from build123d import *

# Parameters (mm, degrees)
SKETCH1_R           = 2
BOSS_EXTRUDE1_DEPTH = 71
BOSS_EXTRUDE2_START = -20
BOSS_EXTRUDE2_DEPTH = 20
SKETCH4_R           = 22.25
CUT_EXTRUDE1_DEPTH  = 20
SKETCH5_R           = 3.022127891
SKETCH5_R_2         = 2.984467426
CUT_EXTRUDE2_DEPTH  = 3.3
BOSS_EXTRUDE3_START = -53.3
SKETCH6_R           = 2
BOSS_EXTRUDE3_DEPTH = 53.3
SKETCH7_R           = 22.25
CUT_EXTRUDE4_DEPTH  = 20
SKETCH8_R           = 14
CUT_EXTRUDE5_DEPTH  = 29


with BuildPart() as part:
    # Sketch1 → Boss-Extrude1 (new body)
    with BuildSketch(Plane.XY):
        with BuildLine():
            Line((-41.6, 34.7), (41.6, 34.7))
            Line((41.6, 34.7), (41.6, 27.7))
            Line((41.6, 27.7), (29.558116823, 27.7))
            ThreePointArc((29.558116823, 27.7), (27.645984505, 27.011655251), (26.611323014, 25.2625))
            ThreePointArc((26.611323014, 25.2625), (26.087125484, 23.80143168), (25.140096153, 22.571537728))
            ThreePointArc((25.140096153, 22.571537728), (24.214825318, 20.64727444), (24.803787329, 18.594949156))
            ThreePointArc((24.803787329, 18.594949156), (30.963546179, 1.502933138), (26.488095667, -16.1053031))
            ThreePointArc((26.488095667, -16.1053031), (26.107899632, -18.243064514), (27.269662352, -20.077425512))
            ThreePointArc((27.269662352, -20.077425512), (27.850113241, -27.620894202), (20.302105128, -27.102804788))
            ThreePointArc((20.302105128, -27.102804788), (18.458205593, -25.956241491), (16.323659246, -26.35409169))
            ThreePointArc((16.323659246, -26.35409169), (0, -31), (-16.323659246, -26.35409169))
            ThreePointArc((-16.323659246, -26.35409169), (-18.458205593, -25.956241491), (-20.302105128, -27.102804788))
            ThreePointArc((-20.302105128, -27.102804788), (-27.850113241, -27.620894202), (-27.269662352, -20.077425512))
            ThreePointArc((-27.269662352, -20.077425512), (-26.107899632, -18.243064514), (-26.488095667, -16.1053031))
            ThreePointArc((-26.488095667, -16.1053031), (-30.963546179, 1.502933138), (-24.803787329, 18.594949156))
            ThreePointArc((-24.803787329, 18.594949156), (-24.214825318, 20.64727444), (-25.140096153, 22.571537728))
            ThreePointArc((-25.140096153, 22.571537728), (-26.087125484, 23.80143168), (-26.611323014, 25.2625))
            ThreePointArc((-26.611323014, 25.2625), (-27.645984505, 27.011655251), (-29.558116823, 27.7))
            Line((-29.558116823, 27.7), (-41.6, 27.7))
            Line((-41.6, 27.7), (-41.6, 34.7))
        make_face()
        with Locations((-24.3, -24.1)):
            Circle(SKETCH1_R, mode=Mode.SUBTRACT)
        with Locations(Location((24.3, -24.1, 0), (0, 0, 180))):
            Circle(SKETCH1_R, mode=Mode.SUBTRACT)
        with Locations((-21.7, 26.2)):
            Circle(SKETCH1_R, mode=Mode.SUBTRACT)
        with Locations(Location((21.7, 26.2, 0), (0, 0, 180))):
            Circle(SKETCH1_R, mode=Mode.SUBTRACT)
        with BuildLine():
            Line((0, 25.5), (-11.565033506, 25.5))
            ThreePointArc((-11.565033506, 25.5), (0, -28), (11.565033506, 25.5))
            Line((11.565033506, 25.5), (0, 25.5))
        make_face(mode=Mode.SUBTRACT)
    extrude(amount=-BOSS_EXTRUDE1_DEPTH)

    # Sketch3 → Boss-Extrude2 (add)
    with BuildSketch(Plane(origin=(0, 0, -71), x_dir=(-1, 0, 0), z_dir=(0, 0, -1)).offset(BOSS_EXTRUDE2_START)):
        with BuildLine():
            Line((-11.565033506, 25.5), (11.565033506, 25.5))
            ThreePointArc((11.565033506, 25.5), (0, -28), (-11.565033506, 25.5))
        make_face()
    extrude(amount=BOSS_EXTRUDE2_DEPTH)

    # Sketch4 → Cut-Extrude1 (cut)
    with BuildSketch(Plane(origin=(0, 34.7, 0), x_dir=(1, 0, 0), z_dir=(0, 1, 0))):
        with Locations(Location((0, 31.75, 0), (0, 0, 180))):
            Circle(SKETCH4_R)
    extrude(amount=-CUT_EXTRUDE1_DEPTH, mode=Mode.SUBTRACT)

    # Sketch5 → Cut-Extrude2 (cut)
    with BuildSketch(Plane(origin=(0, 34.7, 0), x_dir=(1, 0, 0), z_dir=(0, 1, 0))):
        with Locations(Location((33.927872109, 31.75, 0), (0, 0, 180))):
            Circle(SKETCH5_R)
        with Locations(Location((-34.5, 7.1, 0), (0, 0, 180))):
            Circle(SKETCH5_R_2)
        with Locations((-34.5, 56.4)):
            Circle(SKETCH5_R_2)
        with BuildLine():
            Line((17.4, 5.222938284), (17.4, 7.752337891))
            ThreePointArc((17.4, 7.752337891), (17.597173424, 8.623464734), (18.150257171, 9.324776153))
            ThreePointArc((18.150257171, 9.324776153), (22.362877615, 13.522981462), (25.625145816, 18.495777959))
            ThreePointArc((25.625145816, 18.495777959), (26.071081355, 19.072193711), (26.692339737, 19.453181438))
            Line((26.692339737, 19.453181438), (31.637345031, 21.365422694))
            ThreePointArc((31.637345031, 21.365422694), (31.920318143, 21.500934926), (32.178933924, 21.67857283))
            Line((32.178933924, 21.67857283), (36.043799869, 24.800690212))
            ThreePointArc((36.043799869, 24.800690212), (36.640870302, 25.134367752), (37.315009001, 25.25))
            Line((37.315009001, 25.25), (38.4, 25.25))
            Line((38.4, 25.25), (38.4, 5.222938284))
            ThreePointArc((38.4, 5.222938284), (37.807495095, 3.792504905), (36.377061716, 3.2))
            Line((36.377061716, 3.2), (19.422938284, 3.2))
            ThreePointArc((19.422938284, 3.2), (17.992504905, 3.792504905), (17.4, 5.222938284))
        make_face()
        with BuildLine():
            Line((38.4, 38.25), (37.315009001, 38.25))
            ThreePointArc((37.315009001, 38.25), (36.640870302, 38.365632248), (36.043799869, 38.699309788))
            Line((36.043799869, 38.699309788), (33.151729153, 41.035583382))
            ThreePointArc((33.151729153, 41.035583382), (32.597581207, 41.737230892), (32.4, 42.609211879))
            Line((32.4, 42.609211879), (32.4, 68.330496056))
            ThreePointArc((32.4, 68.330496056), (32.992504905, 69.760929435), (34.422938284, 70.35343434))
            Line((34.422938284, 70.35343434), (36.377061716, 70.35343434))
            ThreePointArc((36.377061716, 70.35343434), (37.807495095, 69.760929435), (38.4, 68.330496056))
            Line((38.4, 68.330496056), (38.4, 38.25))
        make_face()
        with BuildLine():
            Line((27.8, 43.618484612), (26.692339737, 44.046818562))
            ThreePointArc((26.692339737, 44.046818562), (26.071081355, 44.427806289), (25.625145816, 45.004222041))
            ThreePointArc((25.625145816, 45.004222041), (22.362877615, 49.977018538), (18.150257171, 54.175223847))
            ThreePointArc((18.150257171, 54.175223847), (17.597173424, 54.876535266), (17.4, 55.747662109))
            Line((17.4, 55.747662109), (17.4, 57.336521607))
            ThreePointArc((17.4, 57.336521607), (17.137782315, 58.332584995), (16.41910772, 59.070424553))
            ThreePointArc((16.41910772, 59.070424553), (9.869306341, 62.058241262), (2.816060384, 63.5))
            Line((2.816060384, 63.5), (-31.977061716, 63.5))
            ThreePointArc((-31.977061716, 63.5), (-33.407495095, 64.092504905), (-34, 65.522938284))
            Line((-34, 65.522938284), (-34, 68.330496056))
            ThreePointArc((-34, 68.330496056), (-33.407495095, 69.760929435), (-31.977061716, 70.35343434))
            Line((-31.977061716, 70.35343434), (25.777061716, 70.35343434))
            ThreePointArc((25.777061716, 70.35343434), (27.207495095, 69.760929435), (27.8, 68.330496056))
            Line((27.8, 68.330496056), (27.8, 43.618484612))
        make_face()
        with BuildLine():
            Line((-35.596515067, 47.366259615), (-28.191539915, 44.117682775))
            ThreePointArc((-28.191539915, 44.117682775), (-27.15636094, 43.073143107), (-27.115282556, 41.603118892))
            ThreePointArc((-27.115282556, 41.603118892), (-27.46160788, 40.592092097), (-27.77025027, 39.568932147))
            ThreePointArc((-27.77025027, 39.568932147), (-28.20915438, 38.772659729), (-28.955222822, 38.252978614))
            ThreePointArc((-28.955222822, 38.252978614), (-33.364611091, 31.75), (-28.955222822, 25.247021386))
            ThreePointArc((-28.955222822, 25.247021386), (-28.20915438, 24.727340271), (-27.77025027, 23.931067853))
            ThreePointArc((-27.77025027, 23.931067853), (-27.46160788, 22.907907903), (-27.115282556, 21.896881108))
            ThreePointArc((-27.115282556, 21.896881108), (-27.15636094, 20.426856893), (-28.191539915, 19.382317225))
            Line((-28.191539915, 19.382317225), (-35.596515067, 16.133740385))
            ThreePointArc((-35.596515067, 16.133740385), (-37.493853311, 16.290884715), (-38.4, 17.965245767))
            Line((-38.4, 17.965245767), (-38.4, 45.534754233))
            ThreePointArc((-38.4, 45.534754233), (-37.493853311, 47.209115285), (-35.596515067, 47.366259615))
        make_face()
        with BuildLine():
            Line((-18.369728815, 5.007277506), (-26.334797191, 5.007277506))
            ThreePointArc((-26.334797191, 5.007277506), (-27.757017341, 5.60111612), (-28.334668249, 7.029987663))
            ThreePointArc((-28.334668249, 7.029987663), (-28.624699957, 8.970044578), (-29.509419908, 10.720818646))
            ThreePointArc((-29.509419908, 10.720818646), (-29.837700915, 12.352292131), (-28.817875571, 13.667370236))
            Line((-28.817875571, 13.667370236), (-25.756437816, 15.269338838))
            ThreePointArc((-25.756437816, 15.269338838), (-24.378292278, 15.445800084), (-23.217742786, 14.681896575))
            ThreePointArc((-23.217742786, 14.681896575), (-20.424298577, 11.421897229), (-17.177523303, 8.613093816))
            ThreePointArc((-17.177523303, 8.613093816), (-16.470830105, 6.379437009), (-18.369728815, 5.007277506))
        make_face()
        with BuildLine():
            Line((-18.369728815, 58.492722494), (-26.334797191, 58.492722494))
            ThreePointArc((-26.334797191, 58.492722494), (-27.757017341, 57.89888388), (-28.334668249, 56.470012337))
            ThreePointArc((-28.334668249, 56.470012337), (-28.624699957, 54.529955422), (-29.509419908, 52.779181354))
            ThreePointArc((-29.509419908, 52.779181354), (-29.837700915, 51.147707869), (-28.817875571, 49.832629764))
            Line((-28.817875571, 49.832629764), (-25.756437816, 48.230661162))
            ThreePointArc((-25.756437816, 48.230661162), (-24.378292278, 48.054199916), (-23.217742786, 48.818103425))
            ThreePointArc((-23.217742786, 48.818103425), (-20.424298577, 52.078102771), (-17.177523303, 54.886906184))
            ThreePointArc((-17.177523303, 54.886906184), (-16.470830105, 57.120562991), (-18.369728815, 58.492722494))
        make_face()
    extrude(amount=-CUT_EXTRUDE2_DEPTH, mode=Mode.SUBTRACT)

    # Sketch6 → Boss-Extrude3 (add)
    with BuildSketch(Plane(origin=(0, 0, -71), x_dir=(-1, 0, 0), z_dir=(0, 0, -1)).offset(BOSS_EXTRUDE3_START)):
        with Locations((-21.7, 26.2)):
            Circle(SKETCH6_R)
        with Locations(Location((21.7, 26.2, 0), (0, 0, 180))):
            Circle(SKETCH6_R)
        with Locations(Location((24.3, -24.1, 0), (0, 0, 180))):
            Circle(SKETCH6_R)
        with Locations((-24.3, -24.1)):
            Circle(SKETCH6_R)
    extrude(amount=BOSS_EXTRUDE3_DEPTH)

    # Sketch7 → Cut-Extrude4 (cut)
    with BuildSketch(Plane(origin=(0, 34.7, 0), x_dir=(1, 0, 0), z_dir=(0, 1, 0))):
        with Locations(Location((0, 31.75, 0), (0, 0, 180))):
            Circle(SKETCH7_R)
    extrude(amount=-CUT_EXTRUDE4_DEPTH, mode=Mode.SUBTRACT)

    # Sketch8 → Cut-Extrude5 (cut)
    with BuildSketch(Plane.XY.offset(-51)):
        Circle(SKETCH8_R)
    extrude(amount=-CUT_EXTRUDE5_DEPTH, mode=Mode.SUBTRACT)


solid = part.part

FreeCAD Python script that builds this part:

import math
import FreeCAD as App
import Part
import Sketcher
from FreeCAD import Vector

doc = App.newDocument("Part")
body = doc.addObject("PartDesign::Body", "Body")

sketch1 = body.newObject("Sketcher::SketchObject", "Sketch")
sketch1.AttachmentSupport = (doc.getObject("XY_Plane"), [""])
sketch1.MapMode = "FlatFace"
sketch1.addGeometry(Part.LineSegment(Vector(41.6, 34.7, 0), Vector(-41.6, 34.7, 0)), False)
sketch1.addGeometry(Part.LineSegment(Vector(-41.6, 34.7, 0), Vector(-41.6, 27.7, 0)), False)
sketch1.addGeometry(Part.LineSegment(Vector(-41.6, 27.7, 0), Vector(-29.6, 27.7, 0)), False)
sketch1.addGeometry(Part.ArcOfCircle(Part.Circle(Vector(-29.6, 24.7, 0), Vector(0, 0, 1), 3), math.radians(11), math.radians(90)), False)
sketch1.addGeometry(Part.ArcOfCircle(Part.Circle(Vector(-21.7, 26.2, 0), Vector(0, 0, 1), 5), math.radians(-169), math.radians(-133)), False)
sketch1.addGeometry(Part.ArcOfCircle(Part.Circle(Vector(-27.2, 20.4, 0), Vector(0, 0, 1), 3), math.radians(-37), math.radians(47)), False)
sketch1.addGeometry(Part.ArcOfCircle(Part.Circle(Vector(0, 0, 0), Vector(0, 0, 1), 31), math.radians(143), math.radians(211)), False)
sketch1.addGeometry(Part.ArcOfCircle(Part.Circle(Vector(-29.1, -17.7, 0), Vector(0, 0, 1), 3), math.radians(-54), math.radians(31)), False)
sketch1.addGeometry(Part.ArcOfCircle(Part.Circle(Vector(-24.3, -24.1, 0), Vector(0, 0, 1), 5), math.radians(126), math.radians(323)), False)
sketch1.addGeometry(Part.ArcOfCircle(Part.Circle(Vector(-17.9, -28.9, 0), Vector(0, 0, 1), 3), math.radians(58), math.radians(143)), False)
sketch1.addGeometry(Part.ArcOfCircle(Part.Circle(Vector(0, 0, 0), Vector(0, 0, 1), 31), math.radians(-122), math.radians(-58)), False)
sketch1.addGeometry(Part.ArcOfCircle(Part.Circle(Vector(17.9, -28.9, 0), Vector(0, 0, 1), 3), math.radians(37), math.radians(122)), False)
sketch1.addGeometry(Part.ArcOfCircle(Part.Circle(Vector(24.3, -24.1, 0), Vector(0, 0, 1), 5), math.radians(-143), math.radians(54)), False)
sketch1.addGeometry(Part.ArcOfCircle(Part.Circle(Vector(29.1, -17.7, 0), Vector(0, 0, 1), 3), math.radians(149), math.radians(234)), False)
sketch1.addGeometry(Part.ArcOfCircle(Part.Circle(Vector(0, 0, 0), Vector(0, 0, 1), 31), math.radians(-31), math.radians(37)), False)
sketch1.addGeometry(Part.ArcOfCircle(Part.Circle(Vector(27.2, 20.4, 0), Vector(0, 0, 1), 3), math.radians(133), math.radians(217)), False)
sketch1.addGeometry(Part.ArcOfCircle(Part.Circle(Vector(21.7, 26.2, 0), Vector(0, 0, 1), 5), math.radians(-47), math.radians(-11)), False)
sketch1.addGeometry(Part.ArcOfCircle(Part.Circle(Vector(29.6, 24.7, 0), Vector(0, 0, 1), 3), math.radians(90), math.radians(169)), False)
sketch1.addGeometry(Part.LineSegment(Vector(29.6, 27.7, 0), Vector(41.6, 27.7, 0)), False)
sketch1.addGeometry(Part.LineSegment(Vector(41.6, 27.7, 0), Vector(41.6, 34.7, 0)), False)
sketch1.addGeometry(Part.Circle(Vector(24.3, -24.1, 0), Vector(0, 0, 1), 2), False)
sketch1.addGeometry(Part.Circle(Vector(-24.3, -24.1, 0), Vector(0, 0, 1), 2), False)
sketch1.addGeometry(Part.LineSegment(Vector(-11.6, 25.5, 0), Vector(11.6, 25.5, 0)), False)
sketch1.addGeometry(Part.ArcOfCircle(Part.Circle(Vector(0, 0, 0), Vector(0, 0, 1), 28), math.radians(114), math.radians(426)), False)
sketch1.addGeometry(Part.Circle(Vector(21.7, 26.2, 0), Vector(0, 0, 1), 2), False)
sketch1.addGeometry(Part.Circle(Vector(-21.7, 26.2, 0), Vector(0, 0, 1), 2), False)
sketch1.addConstraint(Sketcher.Constraint("Coincident", 0, 2, 1, 1))
sketch1.addConstraint(Sketcher.Constraint("Coincident", 1, 2, 2, 1))
sketch1.addConstraint(Sketcher.Constraint("Tangent", 2, 2, 3, 2))
sketch1.addConstraint(Sketcher.Constraint("Tangent", 3, 1, 4, 1))
sketch1.addConstraint(Sketcher.Constraint("Tangent", 4, 2, 5, 2))
sketch1.addConstraint(Sketcher.Constraint("Tangent", 5, 1, 6, 1))
sketch1.addConstraint(Sketcher.Constraint("Tangent", 6, 2, 7, 2))
sketch1.addConstraint(Sketcher.Constraint("Tangent", 7, 1, 8, 1))
sketch1.addConstraint(Sketcher.Constraint("Tangent", 8, 2, 9, 2))
sketch1.addConstraint(Sketcher.Constraint("Tangent", 9, 1, 10, 1))
sketch1.addConstraint(Sketcher.Constraint("Tangent", 10, 2, 11, 2))
sketch1.addConstraint(Sketcher.Constraint("Tangent", 11, 1, 12, 1))
sketch1.addConstraint(Sketcher.Constraint("Tangent", 12, 2, 13, 2))
sketch1.addConstraint(Sketcher.Constraint("Tangent", 13, 1, 14, 1))
sketch1.addConstraint(Sketcher.Constraint("Tangent", 14, 2, 15, 2))
sketch1.addConstraint(Sketcher.Constraint("Tangent", 15, 1, 16, 1))
sketch1.addConstraint(Sketcher.Constraint("Tangent", 16, 2, 17, 2))
sketch1.addConstraint(Sketcher.Constraint("Tangent", 17, 1, 18, 1))
sketch1.addConstraint(Sketcher.Constraint("Coincident", 18, 2, 19, 1))
sketch1.addConstraint(Sketcher.Constraint("Coincident", 19, 2, 0, 1))
sketch1.addConstraint(Sketcher.Constraint("Coincident", 22, 1, 23, 1))
sketch1.addConstraint(Sketcher.Constraint("Coincident", 23, 2, 22, 2))
sketch1.addConstraint(Sketcher.Constraint("Horizontal", 0))
sketch1.addConstraint(Sketcher.Constraint("Vertical", 1))
sketch1.addConstraint(Sketcher.Constraint("Horizontal", 2))
sketch1.addConstraint(Sketcher.Constraint("Horizontal", 18))
sketch1.addConstraint(Sketcher.Constraint("Vertical", 19))
sketch1.addConstraint(Sketcher.Constraint("Horizontal", 22))
sketch1.addConstraint(Sketcher.Constraint("Coincident", 6, 3, -1, 1))
sketch1.addConstraint(Sketcher.Constraint("Coincident", 10, 3, -1, 1))
sketch1.addConstraint(Sketcher.Constraint("Coincident", 14, 3, -1, 1))
sketch1.addConstraint(Sketcher.Constraint("Coincident", 23, 3, -1, 1))
sketch1.addConstraint(Sketcher.Constraint("Coincident", 20, 3, 12, 3))
sketch1.addConstraint(Sketcher.Constraint("Coincident", 21, 3, 8, 3))
sketch1.addConstraint(Sketcher.Constraint("Coincident", 24, 3, 16, 3))
sketch1.addConstraint(Sketcher.Constraint("Coincident", 25, 3, 4, 3))
sketch1.addConstraint(Sketcher.Constraint("Equal", 3, 5))
sketch1.addConstraint(Sketcher.Constraint("Equal", 5, 7))
sketch1.addConstraint(Sketcher.Constraint("Equal", 4, 8))
sketch1.addConstraint(Sketcher.Constraint("Equal", 7, 9))
sketch1.addConstraint(Sketcher.Constraint("Equal", 6, 10))
sketch1.addConstraint(Sketcher.Constraint("Equal", 9, 11))
sketch1.addConstraint(Sketcher.Constraint("Equal", 8, 12))
sketch1.addConstraint(Sketcher.Constraint("Equal", 11, 13))
sketch1.addConstraint(Sketcher.Constraint("Equal", 10, 14))
sketch1.addConstraint(Sketcher.Constraint("Equal", 13, 15))
sketch1.addConstraint(Sketcher.Constraint("Equal", 12, 16))
sketch1.addConstraint(Sketcher.Constraint("Equal", 15, 17))
sketch1.addConstraint(Sketcher.Constraint("Equal", 20, 21))
sketch1.addConstraint(Sketcher.Constraint("Equal", 21, 24))
sketch1.addConstraint(Sketcher.Constraint("Equal", 24, 25))
sketch1.addConstraint(Sketcher.Constraint("Symmetric", 8, 3, 12, 3, -2))
sketch1.addConstraint(Sketcher.Constraint("Symmetric", 4, 3, 16, 3, -2))
sketch1.addConstraint(Sketcher.Constraint("Symmetric", 1, 2, 18, 2, -2))
sketch1.addConstraint(Sketcher.Constraint("Diameter", 20, 4.0))
sketch1.addConstraint(Sketcher.Constraint("Radius", 3, 3.0))
sketch1.addConstraint(Sketcher.Constraint("Radius", 4, 5.0))
sketch1.addConstraint(Sketcher.Constraint("Radius", 6, 31.0))
sketch1.addConstraint(Sketcher.Constraint("Radius", 23, 28.0))
sketch1.addConstraint(Sketcher.Constraint("DistanceY", 1, 2, 1, 1, 7.0))
sketch1.addConstraint(Sketcher.Constraint("DistanceX", 0, 2, 0, 1, 83.2))
sketch1.addConstraint(Sketcher.Constraint("DistanceY", -1, 1, 3, 3, 24.7))
sketch1.addConstraint(Sketcher.Constraint("DistanceX", 4, 3, -1, 1, 21.7))
sketch1.addConstraint(Sketcher.Constraint("DistanceY", -1, 1, 4, 3, 26.2))
sketch1.addConstraint(Sketcher.Constraint("DistanceX", 8, 3, -1, 1, 24.3))
sketch1.addConstraint(Sketcher.Constraint("DistanceY", 8, 3, -1, 1, 24.1))
sketch1.addConstraint(Sketcher.Constraint("DistanceY", -1, 1, 22, 1, 25.5))
pad1 = body.newObject("PartDesign::Pad", "Pad")
pad1.Profile = sketch1
pad1.Length = 71
pad1.Reversed = True

sketch2 = body.newObject("Sketcher::SketchObject", "Sketch001")
sketch2.AttachmentSupport = (doc.getObject("XY_Plane"), [""])
sketch2.MapMode = "FlatFace"
sketch2.AttachmentOffset = App.Placement(Vector(0, 0, -51), App.Rotation())
sketch2.addGeometry(Part.LineSegment(Vector(-12, 26, 0), Vector(12, 26, 0)), False)
sketch2.addGeometry(Part.ArcOfCircle(Part.Circle(Vector(0, 0, 0), Vector(0, 0, 1), 28), math.radians(114), math.radians(426)), False)
sketch2.addConstraint(Sketcher.Constraint("Coincident", 0, 1, 1, 1))
sketch2.addConstraint(Sketcher.Constraint("Coincident", 1, 2, 0, 2))
sketch2.addConstraint(Sketcher.Constraint("Horizontal", 0))
sketch2.addConstraint(Sketcher.Constraint("Coincident", 1, 3, -1, 1))
sketch2.addConstraint(Sketcher.Constraint("Radius", 1, 28.0))
sketch2.addConstraint(Sketcher.Constraint("DistanceY", -1, 1, 0, 1, 25.5))
pad2 = body.newObject("PartDesign::Pad", "Pad001")
pad2.Profile = sketch2
pad2.Length = 20
pad2.Reversed = True

sketch3 = body.newObject("Sketcher::SketchObject", "Sketch002")
sketch3.AttachmentSupport = (doc.getObject("XZ_Plane"), [""])
sketch3.MapMode = "FlatFace"
sketch3.AttachmentOffset = App.Placement(Vector(0, 0, -34.7), App.Rotation())
sketch3.addGeometry(Part.Circle(Vector(0, -32, 0), Vector(0, 0, 1), 22), False)
sketch3.addConstraint(Sketcher.Constraint("PointOnObject", 0, 3, -2))
sketch3.addConstraint(Sketcher.Constraint("Diameter", 0, 44.5))
sketch3.addConstraint(Sketcher.Constraint("DistanceY", 0, 3, -1, 1, 31.75))
pocket1 = body.newObject("PartDesign::Pocket", "Pocket")
pocket1.Profile = sketch3
pocket1.Length = 20
pocket1.Reversed = True

sketch4 = body.newObject("Sketcher::SketchObject", "Sketch003")
sketch4.AttachmentSupport = (doc.getObject("XZ_Plane"), [""])
sketch4.MapMode = "FlatFace"
sketch4.AttachmentOffset = App.Placement(Vector(0, 0, -34.7), App.Rotation())
sketch4.addGeometry(Part.Circle(Vector(33.9, -31.8, 0), Vector(0, 0, 1), 3), False)
sketch4.addGeometry(Part.Circle(Vector(-34.5, -7.1, 0), Vector(0, 0, 1), 3), False)
sketch4.addGeometry(Part.Circle(Vector(-34.5, -56.4, 0), Vector(0, 0, 1), 3), False)
sketch4.addGeometry(Part.LineSegment(Vector(17.4, -7.8, 0), Vector(17.4, -5.2, 0)), False)
sketch4.addGeometry(Part.ArcOfCircle(Part.Circle(Vector(19.4, -5.2, 0), Vector(0, 0, 1), 2), math.radians(90), math.radians(180)), False)
sketch4.addGeometry(Part.LineSegment(Vector(19.4, -3.2, 0), Vector(36.4, -3.2, 0)), False)
sketch4.addGeometry(Part.ArcOfCircle(Part.Circle(Vector(36.4, -5.2, 0), Vector(0, 0, 1), 2), math.radians(0), math.radians(90)), False)
sketch4.addGeometry(Part.LineSegment(Vector(38.4, -5.2, 0), Vector(38.4, -25.2, 0)), False)
sketch4.addGeometry(Part.LineSegment(Vector(38.4, -25.2, 0), Vector(37.3, -25.2, 0)), False)
sketch4.addGeometry(Part.ArcOfCircle(Part.Circle(Vector(37.3, -23.2, 0), Vector(0, 0, 1), 2), math.radians(-129), math.radians(-90)), False)
sketch4.addGeometry(Part.LineSegment(Vector(36, -24.8, 0), Vector(32.2, -21.7, 0)), False)
sketch4.addGeometry(Part.ArcOfCircle(Part.Circle(Vector(30.9, -23.3, 0), Vector(0, 0, 1), 2), math.radians(51.07), math.radians(68.86)), False)
sketch4.addGeometry(Part.LineSegment(Vector(31.6, -21.4, 0), Vector(26.7, -19.5, 0)), False)
sketch4.addGeometry(Part.ArcOfCircle(Part.Circle(Vector(27.4, -17.6, 0), Vector(0, 0, 1), 2), math.radians(-153), math.radians(-111)), False)
sketch4.addGeometry(Part.ArcOfCircle(Part.Circle(Vector(0, -31.7, 0), Vector(0, 0, 1), 28.8), math.radians(27), math.radians(51)), False)
sketch4.addGeometry(Part.ArcOfCircle(Part.Circle(Vector(19.4, -7.8, 0), Vector(0, 0, 1), 2), math.radians(-180), math.radians(-129)), False)
sketch4.addGeometry(Part.LineSegment(Vector(37.3, -38.2, 0), Vector(38.4, -38.2, 0)), False)
sketch4.addGeometry(Part.LineSegment(Vector(38.4, -38.2, 0), Vector(38.4, -68.3, 0)), False)
sketch4.addGeometry(Part.ArcOfCircle(Part.Circle(Vector(36.4, -68.3, 0), Vector(0, 0, 1), 2), math.radians(-90), math.radians(0)), False)
sketch4.addGeometry(Part.LineSegment(Vector(36.4, -70.4, 0), Vector(34.4, -70.4, 0)), False)
sketch4.addGeometry(Part.ArcOfCircle(Part.Circle(Vector(34.4, -68.3, 0), Vector(0, 0, 1), 2), math.radians(180), math.radians(270)), False)
sketch4.addGeometry(Part.LineSegment(Vector(32.4, -68.3, 0), Vector(32.4, -42.6, 0)), False)
sketch4.addGeometry(Part.ArcOfCircle(Part.Circle(Vector(34.4, -42.6, 0), Vector(0, 0, 1), 2), math.radians(129), math.radians(180)), False)
sketch4.addGeometry(Part.LineSegment(Vector(33.2, -41, 0), Vector(36, -38.7, 0)), False)
sketch4.addGeometry(Part.ArcOfCircle(Part.Circle(Vector(37.3, -40.3, 0), Vector(0, 0, 1), 2), math.radians(90), math.radians(129)), False)
sketch4.addGeometry(Part.LineSegment(Vector(26.7, -44, 0), Vector(27.8, -43.6, 0)), False)
sketch4.addGeometry(Part.LineSegment(Vector(27.8, -43.6, 0), Vector(27.8, -68.3, 0)), False)
sketch4.addGeometry(Part.ArcOfCircle(Part.Circle(Vector(25.8, -68.3, 0), Vector(0, 0, 1), 2), math.radians(-90), math.radians(0)), False)
sketch4.addGeometry(Part.LineSegment(Vector(25.8, -70.4, 0), Vector(-32, -70.4, 0)), False)
sketch4.addGeometry(Part.ArcOfCircle(Part.Circle(Vector(-32, -68.3, 0), Vector(0, 0, 1), 2), math.radians(180), math.radians(270)), False)
sketch4.addGeometry(Part.LineSegment(Vector(-34, -68.3, 0), Vector(-34, -65.5, 0)), False)
sketch4.addGeometry(Part.ArcOfCircle(Part.Circle(Vector(-32, -65.5, 0), Vector(0, 0, 1), 2), math.radians(90), math.radians(180)), False)
sketch4.addGeometry(Part.LineSegment(Vector(-32, -63.5, 0), Vector(2.8, -63.5, 0)), False)
sketch4.addGeometry(Part.ArcOfCircle(Part.Circle(Vector(0, -31.7, 0), Vector(0, 0, 1), 31.9), math.radians(-85), math.radians(-59)), False)
sketch4.addGeometry(Part.ArcOfCircle(Part.Circle(Vector(15.4, -57.3, 0), Vector(0, 0, 1), 2), math.radians(-59), math.radians(0)), False)
sketch4.addGeometry(Part.LineSegment(Vector(17.4, -57.3, 0), Vector(17.4, -55.7, 0)), False)
sketch4.addGeometry(Part.ArcOfCircle(Part.Circle(Vector(19.4, -55.7, 0), Vector(0, 0, 1), 2), math.radians(129), math.radians(180)), False)
sketch4.addGeometry(Part.ArcOfCircle(Part.Circle(Vector(0, -31.8, 0), Vector(0, 0, 1), 28.8), math.radians(-51), math.radians(-27)), False)
sketch4.addGeometry(Part.ArcOfCircle(Part.Circle(Vector(27.4, -45.9, 0), Vector(0, 0, 1), 2), math.radians(111), math.radians(153)), False)
sketch4.addGeometry(Part.LineSegment(Vector(-28.2, -44.1, 0), Vector(-35.6, -47.4, 0)), False)
sketch4.addGeometry(Part.ArcOfCircle(Part.Circle(Vector(-36.4, -45.5, 0), Vector(0, 0, 1), 2), math.radians(-180), math.radians(-66)), False)
sketch4.addGeometry(Part.LineSegment(Vector(-38.4, -45.5, 0), Vector(-38.4, -18, 0)), False)
sketch4.addGeometry(Part.ArcOfCircle(Part.Circle(Vector(-36.4, -18, 0), Vector(0, 0, 1), 2), math.radians(66), math.radians(180)), False)
sketch4.addGeometry(Part.LineSegment(Vector(-35.6, -16.1, 0), Vector(-28.2, -19.4, 0)), False)
sketch4.addGeometry(Part.ArcOfCircle(Part.Circle(Vector(-29, -21.2, 0), Vector(0, 0, 1), 2), math.radians(-20), math.radians(66)), False)
sketch4.addGeometry(Part.ArcOfCircle(Part.Circle(Vector(0, -31.7, 0), Vector(0, 0, 1), 28.8), math.radians(160.03), math.radians(164.28)), False)
sketch4.addGeometry(Part.ArcOfCircle(Part.Circle(Vector(-29.7, -23.4, 0), Vector(0, 0, 1), 2), math.radians(-68), math.radians(-16)), False)
sketch4.addGeometry(Part.ArcOfCircle(Part.Circle(Vector(-26.4, -31.8, 0), Vector(0, 0, 1), 7), math.radians(112), math.radians(248)), False)
sketch4.addGeometry(Part.ArcOfCircle(Part.Circle(Vector(-29.7, -40.1, 0), Vector(0, 0, 1), 2), math.radians(16), math.radians(68)), False)
sketch4.addGeometry(Part.ArcOfCircle(Part.Circle(Vector(0, -31.8, 0), Vector(0, 0, 1), 28.8), math.radians(-164.28), math.radians(-160.03)), False)
sketch4.addGeometry(Part.ArcOfCircle(Part.Circle(Vector(-29, -42.3, 0), Vector(0, 0, 1), 2), math.radians(-66), math.radians(20)), False)
sketch4.addGeometry(Part.LineSegment(Vector(-26.3, -5, 0), Vector(-18.4, -5, 0)), False)
sketch4.addGeometry(Part.ArcOfCircle(Part.Circle(Vector(-18.4, -7, 0), Vector(0, 0, 1), 2), math.radians(-53), math.radians(90)), False)
sketch4.addGeometry(Part.ArcOfCircle(Part.Circle(Vector(0, -31.7, 0), Vector(0, 0, 1), 28.8), math.radians(126.59), math.radians(143.68)), False)
sketch4.addGeometry(Part.ArcOfCircle(Part.Circle(Vector(-24.8, -13.5, 0), Vector(0, 0, 1), 2), math.radians(-118), math.radians(-36)), False)
sketch4.addGeometry(Part.LineSegment(Vector(-25.8, -15.3, 0), Vector(-28.8, -13.7, 0)), False)
sketch4.addGeometry(Part.ArcOfCircle(Part.Circle(Vector(-27.9, -11.9, 0), Vector(0, 0, 1), 2), math.radians(144), math.radians(242)), False)
sketch4.addGeometry(Part.ArcOfCircle(Part.Circle(Vector(-34.5, -7.1, 0), Vector(0, 0, 1), 6.2), math.radians(-36), math.radians(1)), False)
sketch4.addGeometry(Part.ArcOfCircle(Part.Circle(Vector(-26.3, -7, 0), Vector(0, 0, 1), 2), math.radians(90), math.radians(181)), False)
sketch4.addGeometry(Part.LineSegment(Vector(-18.4, -58.5, 0), Vector(-26.3, -58.5, 0)), False)
sketch4.addGeometry(Part.ArcOfCircle(Part.Circle(Vector(-26.3, -56.5, 0), Vector(0, 0, 1), 2), math.radians(179), math.radians(270)), False)
sketch4.addGeometry(Part.ArcOfCircle(Part.Circle(Vector(-34.5, -56.4, 0), Vector(0, 0, 1), 6.2), math.radians(-1), math.radians(36)), False)
sketch4.addGeometry(Part.ArcOfCircle(Part.Circle(Vector(-27.9, -51.6, 0), Vector(0, 0, 1), 2), math.radians(118), math.radians(216)), False)
sketch4.addGeometry(Part.LineSegment(Vector(-28.8, -49.8, 0), Vector(-25.8, -48.2, 0)), False)
sketch4.addGeometry(Part.ArcOfCircle(Part.Circle(Vector(-24.8, -50, 0), Vector(0, 0, 1), 2), math.radians(36), math.radians(118)), False)
sketch4.addGeometry(Part.ArcOfCircle(Part.Circle(Vector(0, -31.8, 0), Vector(0, 0, 1), 28.8), math.radians(-143.68), math.radians(-126.59)), False)
sketch4.addGeometry(Part.ArcOfCircle(Part.Circle(Vector(-18.4, -56.5, 0), Vector(0, 0, 1), 2), math.radians(-90), math.radians(53)), False)
sketch4.addConstraint(Sketcher.Constraint("Tangent", 3, 2, 4, 2))
sketch4.addConstraint(Sketcher.Constraint("Tangent", 4, 1, 5, 1))
sketch4.addConstraint(Sketcher.Constraint("Tangent", 5, 2, 6, 2))
sketch4.addConstraint(Sketcher.Constraint("Tangent", 6, 1, 7, 1))
sketch4.addConstraint(Sketcher.Constraint("Coincident", 7, 2, 8, 1))
sketch4.addConstraint(Sketcher.Constraint("Tangent", 8, 2, 9, 2))
sketch4.addConstraint(Sketcher.Constraint("Tangent", 9, 1, 10, 1))
sketch4.addConstraint(Sketcher.Constraint("Tangent", 10, 2, 11, 1))
sketch4.addConstraint(Sketcher.Constraint("Tangent", 11, 2, 12, 1))
sketch4.addConstraint(Sketcher.Constraint("Tangent", 12, 2, 13, 2))
sketch4.addConstraint(Sketcher.Constraint("Tangent", 13, 1, 14, 1))
sketch4.addConstraint(Sketcher.Constraint("Tangent", 14, 2, 15, 2))
sketch4.addConstraint(Sketcher.Constraint("Tangent", 15, 1, 3, 1))
sketch4.addConstraint(Sketcher.Constraint("Coincident", 16, 2, 17, 1))
sketch4.addConstraint(Sketcher.Constraint("Tangent", 17, 2, 18, 2))
sketch4.addConstraint(Sketcher.Constraint("Tangent", 18, 1, 19, 1))
sketch4.addConstraint(Sketcher.Constraint("Tangent", 19, 2, 20, 2))
sketch4.addConstraint(Sketcher.Constraint("Tangent", 20, 1, 21, 1))
sketch4.addConstraint(Sketcher.Constraint("Tangent", 21, 2, 22, 2))
sketch4.addConstraint(Sketcher.Constraint("Tangent", 22, 1, 23, 1))
sketch4.addConstraint(Sketcher.Constraint("Tangent", 23, 2, 24, 2))
sketch4.addConstraint(Sketcher.Constraint("Tangent", 24, 1, 16, 1))
sketch4.addConstraint(Sketcher.Constraint("Coincident", 25, 2, 26, 1))
sketch4.addConstraint(Sketcher.Constraint("Tangent", 26, 2, 27, 2))
sketch4.addConstraint(Sketcher.Constraint("Tangent", 27, 1, 28, 1))
sketch4.addConstraint(Sketcher.Constraint("Tangent", 28, 2, 29, 2))
sketch4.addConstraint(Sketcher.Constraint("Tangent", 29, 1, 30, 1))
sketch4.addConstraint(Sketcher.Constraint("Tangent", 30, 2, 31, 2))
sketch4.addConstraint(Sketcher.Constraint("Tangent", 31, 1, 32, 1))
sketch4.addConstraint(Sketcher.Constraint("Coincident", 32, 2, 33, 1))
sketch4.addConstraint(Sketcher.Constraint("Tangent", 33, 2, 34, 1))
sketch4.addConstraint(Sketcher.Constraint("Tangent", 34, 2, 35, 1))
sketch4.addConstraint(Sketcher.Constraint("Tangent", 35, 2, 36, 2))
sketch4.addConstraint(Sketcher.Constraint("Tangent", 36, 1, 37, 1))
sketch4.addConstraint(Sketcher.Constraint("Tangent", 37, 2, 38, 2))
sketch4.addConstraint(Sketcher.Constraint("Tangent", 38, 1, 25, 1))
sketch4.addConstraint(Sketcher.Constraint("Tangent", 39, 2, 40, 2))
sketch4.addConstraint(Sketcher.Constraint("Tangent", 40, 1, 41, 1))
sketch4.addConstraint(Sketcher.Constraint("Tangent", 41, 2, 42, 2))
sketch4.addConstraint(Sketcher.Constraint("Tangent", 42, 1, 43, 1))
sketch4.addConstraint(Sketcher.Constraint("Tangent", 43, 2, 44, 2))
sketch4.addConstraint(Sketcher.Constraint("Tangent", 44, 1, 45, 1))
sketch4.addConstraint(Sketcher.Constraint("Tangent", 45, 2, 46, 2))
sketch4.addConstraint(Sketcher.Constraint("Tangent", 46, 1, 47, 1))
sketch4.addConstraint(Sketcher.Constraint("Tangent", 47, 2, 48, 2))
sketch4.addConstraint(Sketcher.Constraint("Tangent", 48, 1, 49, 1))
sketch4.addConstraint(Sketcher.Constraint("Tangent", 49, 2, 50, 2))
sketch4.addConstraint(Sketcher.Constraint("Tangent", 50, 1, 39, 1))
sketch4.addConstraint(Sketcher.Constraint("Tangent", 51, 2, 52, 2))
sketch4.addConstraint(Sketcher.Constraint("Tangent", 52, 1, 53, 1))
sketch4.addConstraint(Sketcher.Constraint("Tangent", 53, 2, 54, 2))
sketch4.addConstraint(Sketcher.Constraint("Tangent", 54, 1, 55, 1))
sketch4.addConstraint(Sketcher.Constraint("Tangent", 55, 2, 56, 2))
sketch4.addConstraint(Sketcher.Constraint("Tangent", 56, 1, 57, 1))
sketch4.addConstraint(Sketcher.Constraint("Tangent", 57, 2, 58, 2))
sketch4.addConstraint(Sketcher.Constraint("Tangent", 58, 1, 51, 1))
sketch4.addConstraint(Sketcher.Constraint("Tangent", 59, 2, 60, 2))
sketch4.addConstraint(Sketcher.Constraint("Tangent", 60, 1, 61, 1))
sketch4.addConstraint(Sketcher.Constraint("Tangent", 61, 2, 62, 2))
sketch4.addConstraint(Sketcher.Constraint("Tangent", 62, 1, 63, 1))
sketch4.addConstraint(Sketcher.Constraint("Tangent", 63, 2, 64, 2))
sketch4.addConstraint(Sketcher.Constraint("Tangent", 64, 1, 65, 1))
sketch4.addConstraint(Sketcher.Constraint("Tangent", 65, 2, 66, 2))
sketch4.addConstraint(Sketcher.Constraint("Tangent", 66, 1, 59, 1))
sketch4.addConstraint(Sketcher.Constraint("Vertical", 3))
sketch4.addConstraint(Sketcher.Constraint("Horizontal", 5))
sketch4.addConstraint(Sketcher.Constraint("Vertical", 7))
sketch4.addConstraint(Sketcher.Constraint("Horizontal", 8))
sketch4.addConstraint(Sketcher.Constraint("Horizontal", 16))
sketch4.addConstraint(Sketcher.Constraint("Vertical", 17))
sketch4.addConstraint(Sketcher.Constraint("Horizontal", 19))
sketch4.addConstraint(Sketcher.Constraint("Vertical", 21))
sketch4.addConstraint(Sketcher.Constraint("Vertical", 26))
sketch4.addConstraint(Sketcher.Constraint("Horizontal", 28))
sketch4.addConstraint(Sketcher.Constraint("Vertical", 30))
sketch4.addConstraint(Sketcher.Constraint("Horizontal", 32))
sketch4.addConstraint(Sketcher.Constraint("Vertical", 35))
sketch4.addConstraint(Sketcher.Constraint("Vertical", 41))
sketch4.addConstraint(Sketcher.Constraint("Horizontal", 51))
sketch4.addConstraint(Sketcher.Constraint("Horizontal", 59))
sketch4.addConstraint(Sketcher.Constraint("Coincident", 33, 3, 14, 3))
sketch4.addConstraint(Sketcher.Constraint("Coincident", 37, 3, 14, 3))
sketch4.addConstraint(Sketcher.Constraint("Coincident", 45, 3, 14, 3))
sketch4.addConstraint(Sketcher.Constraint("Coincident", 49, 3, 14, 3))
sketch4.addConstraint(Sketcher.Constraint("Coincident", 53, 3, 14, 3))
sketch4.addConstraint(Sketcher.Constraint("Coincident", 57, 3, 1, 3))
sketch4.addConstraint(Sketcher.Constraint("Coincident", 61, 3, 2, 3))
sketch4.addConstraint(Sketcher.Constraint("Coincident", 65, 3, 14, 3))
sketch4.addConstraint(Sketcher.Constraint("Equal", 1, 2))
sketch4.addConstraint(Sketcher.Constraint("Equal", 4, 6))
sketch4.addConstraint(Sketcher.Constraint("Equal", 6, 9))
sketch4.addConstraint(Sketcher.Constraint("Equal", 9, 11))
sketch4.addConstraint(Sketcher.Constraint("Equal", 11, 13))
sketch4.addConstraint(Sketcher.Constraint("Equal", 13, 15))
sketch4.addConstraint(Sketcher.Constraint("Equal", 15, 18))
sketch4.addConstraint(Sketcher.Constraint("Equal", 18, 20))
sketch4.addConstraint(Sketcher.Constraint("Equal", 20, 22))
sketch4.addConstraint(Sketcher.Constraint("Equal", 22, 24))
sketch4.addConstraint(Sketcher.Constraint("Equal", 24, 27))
sketch4.addConstraint(Sketcher.Constraint("Equal", 27, 29))
sketch4.addConstraint(Sketcher.Constraint("Equal", 29, 31))
sketch4.addConstraint(Sketcher.Constraint("Equal", 31, 34))
sketch4.addConstraint(Sketcher.Constraint("Equal", 34, 36))
sketch4.addConstraint(Sketcher.Constraint("Equal", 14, 37))
sketch4.addConstraint(Sketcher.Constraint("Equal", 36, 38))
sketch4.addConstraint(Sketcher.Constraint("Equal", 40, 42))
sketch4.addConstraint(Sketcher.Constraint("Equal", 42, 44))
sketch4.addConstraint(Sketcher.Constraint("Equal", 37, 45))
sketch4.addConstraint(Sketcher.Constraint("Equal", 44, 46))
sketch4.addConstraint(Sketcher.Constraint("Equal", 46, 48))
sketch4.addConstraint(Sketcher.Constraint("Equal", 45, 49))
sketch4.addConstraint(Sketcher.Constraint("Equal", 48, 50))
sketch4.addConstraint(Sketcher.Constraint("Equal", 50, 52))
sketch4.addConstraint(Sketcher.Constraint("Equal", 52, 54))
sketch4.addConstraint(Sketcher.Constraint("Equal", 54, 56))
sketch4.addConstraint(Sketcher.Constraint("Equal", 56, 58))
sketch4.addConstraint(Sketcher.Constraint("Equal", 58, 60))
sketch4.addConstraint(Sketcher.Constraint("Equal", 57, 61))
sketch4.addConstraint(Sketcher.Constraint("Equal", 60, 62))
sketch4.addConstraint(Sketcher.Constraint("Equal", 62, 64))
sketch4.addConstraint(Sketcher.Constraint("Equal", 53, 65))
sketch4.addConstraint(Sketcher.Constraint("Equal", 64, 66))
sketch4.addConstraint(Sketcher.Constraint("PointOnObject", 14, 3, -2))
sketch4.addConstraint(Sketcher.Constraint("Horizontal", 0, 3, 14, 3))
sketch4.addConstraint(Sketcher.Constraint("Horizontal", 20, 3, 27, 3))
sketch4.addConstraint(Sketcher.Constraint("Horizontal", 45, 3, 47, 3))
sketch4.addConstraint(Sketcher.Constraint("Vertical", 1, 3, 2, 3))
sketch4.addConstraint(Sketcher.Constraint("Vertical", 6, 3, 18, 3))
sketch4.addConstraint(Sketcher.Constraint("Vertical", 9, 3, 24, 3))
sketch4.addConstraint(Sketcher.Constraint("Vertical", 15, 3, 36, 3))
sketch4.addConstraint(Sketcher.Constraint("Vertical", 13, 3, 38, 3))
sketch4.addConstraint(Sketcher.Constraint("Vertical", 44, 3, 50, 3))
sketch4.addConstraint(Sketcher.Constraint("Vertical", 58, 3, 60, 3))
sketch4.addConstraint(Sketcher.Constraint("Vertical", 56, 3, 62, 3))
sketch4.addConstraint(Sketcher.Constraint("Vertical", 54, 3, 64, 3))
sketch4.addConstraint(Sketcher.Constraint("Vertical", 52, 3, 66, 3))
sketch4.addConstraint(Sketcher.Constraint("Vertical", 9, 1, 23, 2))
sketch4.addConstraint(Sketcher.Constraint("Vertical", 12, 2, 38, 1))
sketch4.addConstraint(Sketcher.Constraint("Vertical", 39, 2, 42, 1))
sketch4.addConstraint(Sketcher.Constraint("Radius", 40, 2.0))
sketch4.addConstraint(Sketcher.Constraint("Radius", 47, 7.0))
sketch4.addConstraint(Sketcher.Constraint("Radius", 14, 28.85))
sketch4.addConstraint(Sketcher.Constraint("DistanceX", 29, 1, -1, 1, 34.0))
sketch4.addConstraint(Sketcher.Constraint("DistanceX", 1, 3, -1, 1, 34.5))
sketch4.addConstraint(Sketcher.Constraint("DistanceY", 1, 3, -1, 1, 7.1))
sketch4.addConstraint(Sketcher.Constraint("DistanceY", 2, 3, -1, 1, 56.4))
sketch4.addConstraint(Sketcher.Constraint("DistanceX", 40, 3, -1, 1, 36.4))
sketch4.addConstraint(Sketcher.Constraint("DistanceX", -1, 1, 3, 2, 17.4))
sketch4.addConstraint(Sketcher.Constraint("DistanceY", 4, 1, -1, 1, 3.2))
sketch4.addConstraint(Sketcher.Constraint("DistanceX", -1, 1, 6, 1, 38.4))
sketch4.addConstraint(Sketcher.Constraint("DistanceX", -1, 1, 20, 1, 32.4))
sketch4.addConstraint(Sketcher.Constraint("DistanceX", -1, 1, 25, 2, 27.8))
sketch4.addConstraint(Sketcher.Constraint("DistanceY", 31, 1, -1, 1, 63.5))
sketch4.addConstraint(Sketcher.Constraint("DistanceY", 7, 2, -1, 1, 25.25))
sketch4.addConstraint(Sketcher.Constraint("DistanceY", 16, 2, -1, 1, 38.25))
sketch4.addConstraint(Sketcher.Constraint("Radius", 4, 2.022938))
sketch4.addConstraint(Sketcher.Constraint("Radius", 33, 31.87464))
sketch4.addConstraint(Sketcher.Constraint("Radius", 53, 28.81638))
sketch4.addConstraint(Sketcher.Constraint("Radius", 57, 6.165729))
sketch4.addConstraint(Sketcher.Constraint("Diameter", 0, 6.044256))
sketch4.addConstraint(Sketcher.Constraint("Diameter", 1, 5.968935))
sketch4.addConstraint(Sketcher.Constraint("DistanceX", 8, 2, 8, 1, 1.084991))
sketch4.addConstraint(Sketcher.Constraint("DistanceX", 51, 1, 51, 2, 7.965068))
sketch4.addConstraint(Sketcher.Constraint("DistanceY", 26, 2, 26, 1, 24.712011))
sketch4.addConstraint(Sketcher.Constraint("DistanceY", 41, 1, 41, 2, 27.569508))
sketch4.addConstraint(Sketcher.Constraint("DistanceY", 11, 3, -1, 1, 23.252201))
sketch4.addConstraint(Sketcher.Constraint("DistanceX", -1, 1, 9, 1, 36.0438))
sketch4.addConstraint(Sketcher.Constraint("DistanceY", 17, 2, 17, 1, 30.080496))
sketch4.addConstraint(Sketcher.Constraint("DistanceX", 47, 3, -1, 1, 26.364611))
sketch4.addConstraint(Sketcher.Constraint("DistanceX", 54, 3, -1, 1, 24.82917))
sketch4.addConstraint(Sketcher.Constraint("DistanceY", 39, 2, -1, 1, 47.36626))
sketch4.addConstraint(Sketcher.Constraint("DistanceY", 54, 1, -1, 1, 15.269339))
sketch4.addConstraint(Sketcher.Constraint("DistanceX", -1, 1, 0, 3, 33.927872))
pocket2 = body.newObject("PartDesign::Pocket", "Pocket001")
pocket2.Profile = sketch4
pocket2.Length = 3.3
pocket2.Reversed = True

sketch5 = body.newObject("Sketcher::SketchObject", "Sketch004")
sketch5.AttachmentSupport = (doc.getObject("XY_Plane"), [""])
sketch5.MapMode = "FlatFace"
sketch5.AttachmentOffset = App.Placement(Vector(0, 0, -17.7), App.Rotation())
sketch5.addGeometry(Part.Circle(Vector(21.7, 26.2, 0), Vector(0, 0, 1), 2), False)
sketch5.addGeometry(Part.Circle(Vector(-21.7, 26.2, 0), Vector(0, 0, 1), 2), False)
sketch5.addGeometry(Part.Circle(Vector(-24.3, -24.1, 0), Vector(0, 0, 1), 2), False)
sketch5.addGeometry(Part.Circle(Vector(24.3, -24.1, 0), Vector(0, 0, 1), 2), False)
sketch5.addConstraint(Sketcher.Constraint("Equal", 0, 1))
sketch5.addConstraint(Sketcher.Constraint("Equal", 1, 2))
sketch5.addConstraint(Sketcher.Constraint("Equal", 2, 3))
sketch5.addConstraint(Sketcher.Constraint("Symmetric", 0, 3, 1, 3, -2))
sketch5.addConstraint(Sketcher.Constraint("Symmetric", 2, 3, 3, 3, -2))
sketch5.addConstraint(Sketcher.Constraint("Diameter", 0, 4.0))
sketch5.addConstraint(Sketcher.Constraint("DistanceX", 2, 3, 0, 3, 46.0))
sketch5.addConstraint(Sketcher.Constraint("DistanceX", -1, 1, 0, 3, 21.7))
sketch5.addConstraint(Sketcher.Constraint("DistanceY", -1, 1, 0, 3, 26.2))
sketch5.addConstraint(Sketcher.Constraint("DistanceY", 2, 3, -1, 1, 24.1))
pad3 = body.newObject("PartDesign::Pad", "Pad002")
pad3.Profile = sketch5
pad3.Length = 53.3
pad3.Reversed = True

sketch6 = body.newObject("Sketcher::SketchObject", "Sketch005")
sketch6.AttachmentSupport = (doc.getObject("XZ_Plane"), [""])
sketch6.MapMode = "FlatFace"
sketch6.AttachmentOffset = App.Placement(Vector(0, 0, -34.7), App.Rotation())
sketch6.addGeometry(Part.Circle(Vector(0, -32, 0), Vector(0, 0, 1), 22), False)
sketch6.addConstraint(Sketcher.Constraint("PointOnObject", 0, 3, -2))
sketch6.addConstraint(Sketcher.Constraint("Diameter", 0, 44.5))
sketch6.addConstraint(Sketcher.Constraint("DistanceY", 0, 3, -1, 1, 31.75))
pocket3 = body.newObject("PartDesign::Pocket", "Pocket002")
pocket3.Profile = sketch6
pocket3.Length = 20
pocket3.Reversed = True

sketch7 = body.newObject("Sketcher::SketchObject", "Sketch006")
sketch7.AttachmentSupport = (doc.getObject("XY_Plane"), [""])
sketch7.MapMode = "FlatFace"
sketch7.AttachmentOffset = App.Placement(Vector(0, 0, -51), App.Rotation())
sketch7.addGeometry(Part.Circle(Vector(0, 0, 0), Vector(0, 0, 1), 14), False)
sketch7.addConstraint(Sketcher.Constraint("Coincident", 0, 3, -1, 1))
sketch7.addConstraint(Sketcher.Constraint("Diameter", 0, 28.0))
pocket4 = body.newObject("PartDesign::Pocket", "Pocket003")
pocket4.Profile = sketch7
pocket4.Length = 29

doc.recompute()
